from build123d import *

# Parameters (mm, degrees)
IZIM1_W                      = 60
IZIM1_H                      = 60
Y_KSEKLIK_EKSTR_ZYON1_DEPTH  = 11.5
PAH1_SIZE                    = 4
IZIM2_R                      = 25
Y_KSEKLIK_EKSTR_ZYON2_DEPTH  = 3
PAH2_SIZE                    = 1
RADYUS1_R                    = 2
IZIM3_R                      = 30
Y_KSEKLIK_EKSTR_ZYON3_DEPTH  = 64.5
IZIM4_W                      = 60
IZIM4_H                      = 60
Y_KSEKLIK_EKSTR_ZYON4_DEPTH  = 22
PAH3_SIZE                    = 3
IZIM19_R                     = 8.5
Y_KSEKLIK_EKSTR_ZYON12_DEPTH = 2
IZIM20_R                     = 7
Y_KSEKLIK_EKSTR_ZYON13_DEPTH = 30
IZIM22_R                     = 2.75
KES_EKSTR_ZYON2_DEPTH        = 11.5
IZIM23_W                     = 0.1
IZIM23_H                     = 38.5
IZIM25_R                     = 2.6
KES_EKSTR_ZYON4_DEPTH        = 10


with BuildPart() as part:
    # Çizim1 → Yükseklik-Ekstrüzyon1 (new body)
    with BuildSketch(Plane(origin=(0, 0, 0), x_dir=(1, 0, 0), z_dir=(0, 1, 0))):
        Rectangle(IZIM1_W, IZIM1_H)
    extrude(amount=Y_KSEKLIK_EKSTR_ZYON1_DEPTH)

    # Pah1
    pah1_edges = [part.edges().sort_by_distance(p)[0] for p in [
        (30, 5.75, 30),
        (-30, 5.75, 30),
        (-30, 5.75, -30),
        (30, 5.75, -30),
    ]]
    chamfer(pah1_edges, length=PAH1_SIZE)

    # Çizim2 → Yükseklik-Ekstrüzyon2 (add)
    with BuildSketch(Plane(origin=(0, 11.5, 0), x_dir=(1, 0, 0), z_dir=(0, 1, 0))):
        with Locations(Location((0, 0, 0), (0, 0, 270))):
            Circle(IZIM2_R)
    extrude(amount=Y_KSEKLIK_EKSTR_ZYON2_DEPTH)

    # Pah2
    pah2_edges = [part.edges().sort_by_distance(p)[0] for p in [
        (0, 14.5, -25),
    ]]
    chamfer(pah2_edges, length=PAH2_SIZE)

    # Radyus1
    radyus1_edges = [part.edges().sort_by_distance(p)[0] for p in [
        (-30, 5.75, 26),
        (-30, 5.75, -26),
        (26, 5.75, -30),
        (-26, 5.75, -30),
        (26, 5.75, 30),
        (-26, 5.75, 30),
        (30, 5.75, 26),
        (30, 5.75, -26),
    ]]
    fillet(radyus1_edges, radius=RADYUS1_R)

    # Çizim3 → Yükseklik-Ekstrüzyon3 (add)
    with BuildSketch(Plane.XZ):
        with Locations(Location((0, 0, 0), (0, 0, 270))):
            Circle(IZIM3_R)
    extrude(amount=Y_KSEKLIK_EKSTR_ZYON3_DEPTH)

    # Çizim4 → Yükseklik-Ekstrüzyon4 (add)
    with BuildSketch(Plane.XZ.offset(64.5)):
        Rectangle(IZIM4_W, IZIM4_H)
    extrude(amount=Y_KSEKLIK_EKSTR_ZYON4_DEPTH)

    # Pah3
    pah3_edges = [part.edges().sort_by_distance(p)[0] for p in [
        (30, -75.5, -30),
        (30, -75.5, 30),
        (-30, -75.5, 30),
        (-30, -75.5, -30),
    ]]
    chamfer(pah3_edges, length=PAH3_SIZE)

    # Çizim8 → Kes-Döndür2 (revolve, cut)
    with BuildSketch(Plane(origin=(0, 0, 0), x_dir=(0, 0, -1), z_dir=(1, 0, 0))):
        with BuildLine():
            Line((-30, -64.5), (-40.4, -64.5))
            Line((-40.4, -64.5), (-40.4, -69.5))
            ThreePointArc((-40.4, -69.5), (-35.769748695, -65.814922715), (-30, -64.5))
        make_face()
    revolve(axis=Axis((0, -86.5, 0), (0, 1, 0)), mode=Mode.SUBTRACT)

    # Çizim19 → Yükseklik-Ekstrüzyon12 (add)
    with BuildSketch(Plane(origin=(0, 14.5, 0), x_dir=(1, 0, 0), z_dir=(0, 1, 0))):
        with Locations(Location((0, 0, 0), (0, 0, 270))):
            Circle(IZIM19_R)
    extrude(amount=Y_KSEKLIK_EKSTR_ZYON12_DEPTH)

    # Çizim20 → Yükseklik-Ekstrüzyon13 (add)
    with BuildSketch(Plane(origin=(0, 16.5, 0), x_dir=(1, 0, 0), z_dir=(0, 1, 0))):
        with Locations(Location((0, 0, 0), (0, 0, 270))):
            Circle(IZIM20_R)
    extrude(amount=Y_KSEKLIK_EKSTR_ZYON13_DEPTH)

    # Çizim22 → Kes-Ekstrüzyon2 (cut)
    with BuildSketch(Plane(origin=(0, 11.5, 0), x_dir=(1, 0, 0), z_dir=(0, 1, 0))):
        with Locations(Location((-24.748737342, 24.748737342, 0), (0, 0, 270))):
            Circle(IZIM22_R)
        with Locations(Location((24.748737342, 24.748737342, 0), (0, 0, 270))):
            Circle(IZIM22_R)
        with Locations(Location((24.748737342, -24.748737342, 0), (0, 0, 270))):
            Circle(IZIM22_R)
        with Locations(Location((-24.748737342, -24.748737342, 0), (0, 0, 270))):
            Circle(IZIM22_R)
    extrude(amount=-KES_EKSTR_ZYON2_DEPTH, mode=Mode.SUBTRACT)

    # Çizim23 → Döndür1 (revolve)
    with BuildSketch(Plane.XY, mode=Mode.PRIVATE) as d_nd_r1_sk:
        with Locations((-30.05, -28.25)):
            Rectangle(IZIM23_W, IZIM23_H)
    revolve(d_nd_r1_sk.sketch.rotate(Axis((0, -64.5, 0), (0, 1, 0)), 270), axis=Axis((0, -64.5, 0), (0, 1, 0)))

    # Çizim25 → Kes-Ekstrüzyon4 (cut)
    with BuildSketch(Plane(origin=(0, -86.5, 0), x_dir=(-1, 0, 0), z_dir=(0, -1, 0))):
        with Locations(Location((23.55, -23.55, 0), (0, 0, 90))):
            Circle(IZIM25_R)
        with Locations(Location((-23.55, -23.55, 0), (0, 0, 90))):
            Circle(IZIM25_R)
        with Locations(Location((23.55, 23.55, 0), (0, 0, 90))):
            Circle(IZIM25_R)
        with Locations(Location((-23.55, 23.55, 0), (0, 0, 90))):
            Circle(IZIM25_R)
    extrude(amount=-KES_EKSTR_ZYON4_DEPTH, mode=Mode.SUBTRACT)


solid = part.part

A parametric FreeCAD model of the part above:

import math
import FreeCAD as App
import Part
import Sketcher


def edges_at(feature, points):
    """Names of the edges that pass closest to the given points."""
    edges = feature.Shape.Edges
    near = lambda p: min(range(len(edges)), key=lambda i: edges[i].distToShape(Part.Vertex(*p))[0])
    return sorted({f"Edge{near(p) + 1}" for p in points})


def add_polygon(sketch, points):
    """Adds a closed chain of lines whose ends are joined by coincident constraints."""
    first, n = sketch.GeometryCount, len(points)
    for a, b in zip(points, points[1:] + points[:1]):
        sketch.addGeometry(Part.LineSegment(App.Vector(*a, 0), App.Vector(*b, 0)), False)
    for i in range(n):
        sketch.addConstraint(Sketcher.Constraint("Coincident", first + i, 2, first + (i + 1) % n, 1))

doc = App.newDocument("Part")
body = doc.addObject("PartDesign::Body", "Body")

sketch1 = body.newObject("Sketcher::SketchObject", "Sketch")
sketch1.AttachmentSupport = (doc.getObject("XZ_Plane"), [""])
sketch1.MapMode = "FlatFace"
add_polygon(sketch1, [(-30, -30), (-30, 30), (30, 30), (30, -30)])
sketch1.addConstraint(Sketcher.Constraint("Vertical", 0))
sketch1.addConstraint(Sketcher.Constraint("Horizontal", 1))
sketch1.addConstraint(Sketcher.Constraint("Vertical", 2))
sketch1.addConstraint(Sketcher.Constraint("Horizontal", 3))
sketch1.addConstraint(Sketcher.Constraint("Symmetric", 0, 2, 2, 2, -1, 1))
sketch1.addConstraint(Sketcher.Constraint("Equal", 3, 0))
sketch1.addConstraint(Sketcher.Constraint("DistanceX", 1, 1, 1, 2, 60.0))
pad1 = body.newObject("PartDesign::Pad", "Pad")
pad1.Profile = sketch1
pad1.Length = 11.5
pad1.Reversed = True
doc.recompute()

chamfer = body.newObject("PartDesign::Chamfer", "Chamfer")
chamfer.Base = (pad1, edges_at(pad1, [
    (30, 5.75, 30),
    (-30, 5.75, 30),
    (-30, 5.75, -30),
    (30, 5.75, -30),
]))
chamfer.Size = 4

sketch2 = body.newObject("Sketcher::SketchObject", "Sketch001")
sketch2.AttachmentSupport = (doc.getObject("XZ_Plane"), [""])
sketch2.MapMode = "FlatFace"
sketch2.AttachmentOffset = App.Placement(App.Vector(0, 0, -11.5), App.Rotation())
sketch2.addGeometry(Part.Circle(App.Vector(0, 0, 0), App.Vector(0, 0, 1), 25), False)
sketch2.addConstraint(Sketcher.Constraint("Coincident", 0, 3, -1, 1))
sketch2.addConstraint(Sketcher.Constraint("Diameter", 0, 50.0))
pad2 = body.newObject("PartDesign::Pad", "Pad001")
pad2.Profile = sketch2
pad2.Length = 3
pad2.Reversed = True
doc.recompute()

chamfer2 = body.newObject("PartDesign::Chamfer", "Chamfer001")
chamfer2.Base = (pad2, edges_at(pad2, [(0, 14.5, -25)]))
chamfer2.Size = 1
doc.recompute()

fillet = body.newObject("PartDesign::Fillet", "Fillet")
fillet.Base = (chamfer2, edges_at(chamfer2, [
    (-30, 5.75, 26),
    (-30, 5.75, -26),
    (26, 5.75, -30),
    (-26, 5.75, -30),
    (26, 5.75, 30),
    (-26, 5.75, 30),
    (30, 5.75, 26),
    (30, 5.75, -26),
]))
fillet.Radius = 2

sketch3 = body.newObject("Sketcher::SketchObject", "Sketch002")
sketch3.AttachmentSupport = (doc.getObject("XZ_Plane"), [""])
sketch3.MapMode = "FlatFace"
sketch3.addGeometry(Part.Circle(App.Vector(0, 0, 0), App.Vector(0, 0, 1), 30), False)
sketch3.addConstraint(Sketcher.Constraint("Coincident", 0, 3, -1, 1))
sketch3.addConstraint(Sketcher.Constraint("Diameter", 0, 60.0))
pad3 = body.newObject("PartDesign::Pad", "Pad002")
pad3.Profile = sketch3
pad3.Length = 64.5

sketch4 = body.newObject("Sketcher::SketchObject", "Sketch003")
sketch4.AttachmentSupport = (doc.getObject("XZ_Plane"), [""])
sketch4.MapMode = "FlatFace"
sketch4.AttachmentOffset = App.Placement(App.Vector(0, 0, 64.5), App.Rotation())
add_polygon(sketch4, [(-30, 30), (-30, -30), (30, -30), (30, 30)])
sketch4.addConstraint(Sketcher.Constraint("Vertical", 0))
sketch4.addConstraint(Sketcher.Constraint("Horizontal", 1))
sketch4.addConstraint(Sketcher.Constraint("Vertical", 2))
sketch4.addConstraint(Sketcher.Constraint("Horizontal", 3))
sketch4.addConstraint(Sketcher.Constraint("Symmetric", 0, 2, 2, 2, -1, 1))
sketch4.addConstraint(Sketcher.Constraint("Equal", 3, 0))
sketch4.addConstraint(Sketcher.Constraint("DistanceX", 1, 1, 1, 2, 60.0))
pad4 = body.newObject("PartDesign::Pad", "Pad003")
pad4.Profile = sketch4
pad4.Length = 22
doc.recompute()

chamfer3 = body.newObject("PartDesign::Chamfer", "Chamfer002")
chamfer3.Base = (pad4, edges_at(pad4, [
    (30, -75.5, -30),
    (30, -75.5, 30),
    (-30, -75.5, 30),
    (-30, -75.5, -30),
]))
chamfer3.Size = 3

sketch5 = body.newObject("Sketcher::SketchObject", "Sketch004")
sketch5.AttachmentSupport = (doc.getObject("YZ_Plane"), [""])
sketch5.MapMode = "FlatFace"
sketch5.addGeometry(Part.LineSegment(App.Vector(-64, 30, 0), App.Vector(-64, 40, 0)), False)
sketch5.addGeometry(Part.LineSegment(App.Vector(-64, 40, 0), App.Vector(-70, 40, 0)), False)
sketch5.addGeometry(Part.ArcOfCircle(Part.Circle(App.Vector(-78, 30, 0), App.Vector(0, 0, 1), 13), math.radians(0), math.radians(51)), False)
sketch5.addConstraint(Sketcher.Constraint("Coincident", 0, 2, 1, 1))
sketch5.addConstraint(Sketcher.Constraint("Coincident", 1, 2, 2, 2))
sketch5.addConstraint(Sketcher.Constraint("Tangent", 2, 1, 0, 1))
sketch5.addConstraint(Sketcher.Constraint("Vertical", 0))
sketch5.addConstraint(Sketcher.Constraint("Horizontal", 1))
sketch5.addConstraint(Sketcher.Constraint("DistanceX", 1, 2, 1, 1, 5.0))
sketch5.addConstraint(Sketcher.Constraint("DistanceY", 0, 1, 0, 2, 10.4))
sketch5.addConstraint(Sketcher.Constraint("DistanceY", -1, 1, 2, 3, 30.0))
sketch5.addConstraint(Sketcher.Constraint("DistanceX", 0, 2, -1, 1, 64.5))
groove = body.newObject("PartDesign::Groove", "Groove")
groove.Profile = sketch5
groove.ReferenceAxis = (sketch5, ["H_Axis"])
groove.Angle = 360

sketch6 = body.newObject("Sketcher::SketchObject", "Sketch005")
sketch6.AttachmentSupport = (doc.getObject("XZ_Plane"), [""])
sketch6.MapMode = "FlatFace"
sketch6.AttachmentOffset = App.Placement(App.Vector(0, 0, -14.5), App.Rotation())
sketch6.addGeometry(Part.Circle(App.Vector(0, 0, 0), App.Vector(0, 0, 1), 8), False)
sketch6.addConstraint(Sketcher.Constraint("Coincident", 0, 3, -1, 1))
sketch6.addConstraint(Sketcher.Constraint("Diameter", 0, 17.0))
pad5 = body.newObject("PartDesign::Pad", "Pad004")
pad5.Profile = sketch6
pad5.Length = 2
pad5.Reversed = True

sketch7 = body.newObject("Sketcher::SketchObject", "Sketch006")
sketch7.AttachmentSupport = (doc.getObject("XZ_Plane"), [""])
sketch7.MapMode = "FlatFace"
sketch7.AttachmentOffset = App.Placement(App.Vector(0, 0, -16.5), App.Rotation())
sketch7.addGeometry(Part.Circle(App.Vector(0, 0, 0), App.Vector(0, 0, 1), 7), False)
sketch7.addConstraint(Sketcher.Constraint("Coincident", 0, 3, -1, 1))
sketch7.addConstraint(Sketcher.Constraint("Diameter", 0, 14.0))
pad6 = body.newObject("PartDesign::Pad", "Pad005")
pad6.Profile = sketch7
pad6.Length = 30
pad6.Reversed = True

sketch8 = body.newObject("Sketcher::SketchObject", "Sketch007")
sketch8.AttachmentSupport = (doc.getObject("XZ_Plane"), [""])
sketch8.MapMode = "FlatFace"
sketch8.AttachmentOffset = App.Placement(App.Vector(0, 0, -11.5), App.Rotation())
sketch8.addGeometry(Part.Circle(App.Vector(-24.7, -24.7, 0), App.Vector(0, 0, 1), 2.8), False)
sketch8.addGeometry(Part.Circle(App.Vector(24.7, -24.7, 0), App.Vector(0, 0, 1), 2.8), False)
sketch8.addGeometry(Part.Circle(App.Vector(24.7, 24.7, 0), App.Vector(0, 0, 1), 2.8), False)
sketch8.addGeometry(Part.Circle(App.Vector(-24.7, 24.7, 0), App.Vector(0, 0, 1), 2.8), False)
sketch8.addConstraint(Sketcher.Constraint("Equal", 0, 1))
sketch8.addConstraint(Sketcher.Constraint("Equal", 1, 2))
sketch8.addConstraint(Sketcher.Constraint("Equal", 2, 3))
sketch8.addConstraint(Sketcher.Constraint("Symmetric", 0, 3, 2, 3, -1, 1))
sketch8.addConstraint(Sketcher.Constraint("Symmetric", 1, 3, 3, 3, -1, 1))
sketch8.addConstraint(Sketcher.Constraint("Symmetric", 0, 3, 1, 3, -2))
sketch8.addConstraint(Sketcher.Constraint("Diameter", 0, 5.5))
sketch8.addConstraint(Sketcher.Constraint("DistanceX", 0, 3, -1, 1, 24.748737))
sketch8.addConstraint(Sketcher.Constraint("DistanceY", 0, 3, -1, 1, 24.748737))
pocket1 = body.newObject("PartDesign::Pocket", "Pocket")
pocket1.Profile = sketch8
pocket1.Length = 11.5
pocket1.Reversed = True

sketch9 = body.newObject("Sketcher::SketchObject", "Sketch008")
sketch9.AttachmentSupport = (doc.getObject("XY_Plane"), [""])
sketch9.MapMode = "FlatFace"
add_polygon(sketch9, [(-30.1, -9), (-30.1, -47.5), (-30, -47.5), (-30, -9)])
sketch9.addConstraint(Sketcher.Constraint("Vertical", 0))
sketch9.addConstraint(Sketcher.Constraint("Horizontal", 1))
sketch9.addConstraint(Sketcher.Constraint("Vertical", 2))
sketch9.addConstraint(Sketcher.Constraint("Horizontal", 3))
sketch9.addConstraint(Sketcher.Constraint("DistanceX", 1, 1, 1, 2, 0.1))
sketch9.addConstraint(Sketcher.Constraint("DistanceY", 0, 2, 0, 1, 38.5))
sketch9.addConstraint(Sketcher.Constraint("DistanceX", 1, 2, -1, 1, 30.0))
sketch9.addConstraint(Sketcher.Constraint("DistanceY", 2, 2, -1, 1, 9.0))
revolution = body.newObject("PartDesign::Revolution", "Revolution")
revolution.Profile = sketch9
revolution.ReferenceAxis = (sketch9, ["V_Axis"])
revolution.Angle = 360

sketch10 = body.newObject("Sketcher::SketchObject", "Sketch009")
sketch10.AttachmentSupport = (doc.getObject("XZ_Plane"), [""])
sketch10.MapMode = "FlatFace"
sketch10.AttachmentOffset = App.Placement(App.Vector(0, 0, 86.5), App.Rotation())
sketch10.addGeometry(Part.Circle(App.Vector(-23.6, 23.6, 0), App.Vector(0, 0, 1), 2.6), False)
sketch10.addGeometry(Part.Circle(App.Vector(23.6, 23.6, 0), App.Vector(0, 0, 1), 2.6), False)
sketch10.addGeometry(Part.Circle(App.Vector(-23.6, -23.6, 0), App.Vector(0, 0, 1), 2.6), False)
sketch10.addGeometry(Part.Circle(App.Vector(23.6, -23.6, 0), App.Vector(0, 0, 1), 2.6), False)
sketch10.addConstraint(Sketcher.Constraint("Equal", 0, 1))
sketch10.addConstraint(Sketcher.Constraint("Equal", 1, 2))
sketch10.addConstraint(Sketcher.Constraint("Equal", 2, 3))
sketch10.addConstraint(Sketcher.Constraint("Symmetric", 1, 3, 2, 3, -1, 1))
sketch10.addConstraint(Sketcher.Constraint("Symmetric", 0, 3, 3, 3, -1, 1))
sketch10.addConstraint(Sketcher.Constraint("Symmetric", 0, 3, 1, 3, -2))
sketch10.addConstraint(Sketcher.Constraint("Diameter", 0, 5.2))
sketch10.addConstraint(Sketcher.Constraint("DistanceX", 0, 3, 1, 3, 47.1))
sketch10.addConstraint(Sketcher.Constraint("DistanceY", 2, 3, 0, 3, 47.1))
pocket2 = body.newObject("PartDesign::Pocket", "Pocket001")
pocket2.Profile = sketch10
pocket2.Length = 10

doc.recompute()
